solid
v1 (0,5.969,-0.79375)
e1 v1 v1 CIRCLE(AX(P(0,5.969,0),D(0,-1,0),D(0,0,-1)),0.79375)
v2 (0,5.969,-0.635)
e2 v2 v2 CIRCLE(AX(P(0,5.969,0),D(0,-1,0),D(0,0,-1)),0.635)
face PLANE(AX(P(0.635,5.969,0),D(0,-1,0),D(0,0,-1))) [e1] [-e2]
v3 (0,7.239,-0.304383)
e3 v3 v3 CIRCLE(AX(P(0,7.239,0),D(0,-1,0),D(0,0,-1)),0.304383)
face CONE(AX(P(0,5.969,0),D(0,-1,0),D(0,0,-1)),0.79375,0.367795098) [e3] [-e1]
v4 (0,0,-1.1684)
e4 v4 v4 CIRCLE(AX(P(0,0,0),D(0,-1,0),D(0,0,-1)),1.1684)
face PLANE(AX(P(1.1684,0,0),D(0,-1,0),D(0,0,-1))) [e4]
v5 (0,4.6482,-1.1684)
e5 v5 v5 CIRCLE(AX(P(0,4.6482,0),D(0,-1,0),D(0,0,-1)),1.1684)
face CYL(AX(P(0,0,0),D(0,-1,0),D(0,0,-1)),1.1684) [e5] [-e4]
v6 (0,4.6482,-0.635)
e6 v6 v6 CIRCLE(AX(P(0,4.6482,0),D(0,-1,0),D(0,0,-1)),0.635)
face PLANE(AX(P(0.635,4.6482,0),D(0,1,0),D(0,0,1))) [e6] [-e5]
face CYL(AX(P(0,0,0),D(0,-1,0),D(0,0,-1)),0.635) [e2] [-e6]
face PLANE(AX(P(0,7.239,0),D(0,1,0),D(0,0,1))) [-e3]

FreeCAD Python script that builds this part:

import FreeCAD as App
import Part
import Sketcher
from FreeCAD import Vector
Q = App.Units.Quantity

doc = App.newDocument("Part")
params = doc.addObject("Spreadsheet::Sheet", "Params")
for row, (alias, value) in enumerate([
    ("sketch1_width", "0.046 in"),
    ("sketch1_width2", "0.021 in"),
    ("sketch1_height", "0.285 in"),
    ("sketch1_height2", "0.183 in"),
    ("sketch1_height3", "0.052 in"),
    ("revolution_angle", "360 deg"),
], start=1):
    params.set(f"A{row}", alias)
    params.set(f"B{row}", "=" + value)
    params.setAlias(f"B{row}", alias)

body = doc.addObject("PartDesign::Body", "Body")

# Sketch on XY plane
sketch1 = body.newObject("Sketcher::SketchObject", "Sketch")
sketch1.AttachmentSupport = (doc.getObject("XY_Plane"), [""])
sketch1.MapMode = "FlatFace"
sketch1.addGeometry(Part.LineSegment(Vector(0, 7.24, 0), Vector(0, 0, 0)), False)
sketch1.addGeometry(Part.LineSegment(Vector(0, 0, 0), Vector(1.17, 0, 0)), False)
sketch1.addGeometry(Part.LineSegment(Vector(1.17, 0, 0), Vector(1.17, 4.65, 0)), False)
sketch1.addGeometry(Part.LineSegment(Vector(1.17, 4.65, 0), Vector(0.64, 4.65, 0)), False)
sketch1.addGeometry(Part.LineSegment(Vector(0.64, 4.65, 0), Vector(0.64, 5.97, 0)), False)
sketch1.addGeometry(Part.LineSegment(Vector(0.64, 5.97, 0), Vector(0.79, 5.97, 0)), False)
sketch1.addGeometry(Part.LineSegment(Vector(0.79, 5.97, 0), Vector(0.3, 7.24, 0)), False)
sketch1.addGeometry(Part.LineSegment(Vector(0.3, 7.24, 0), Vector(0, 7.24, 0)), False)
sketch1.addConstraint(Sketcher.Constraint("Coincident", 0, 2, 1, 1))
sketch1.addConstraint(Sketcher.Constraint("Coincident", 1, 2, 2, 1))
sketch1.addConstraint(Sketcher.Constraint("Coincident", 2, 2, 3, 1))
sketch1.addConstraint(Sketcher.Constraint("Coincident", 3, 2, 4, 1))
sketch1.addConstraint(Sketcher.Constraint("Coincident", 4, 2, 5, 1))
sketch1.addConstraint(Sketcher.Constraint("Coincident", 5, 2, 6, 1))
sketch1.addConstraint(Sketcher.Constraint("Coincident", 6, 2, 7, 1))
sketch1.addConstraint(Sketcher.Constraint("Coincident", 7, 2, 0, 1))
sketch1.addConstraint(Sketcher.Constraint("Vertical", 0))
sketch1.addConstraint(Sketcher.Constraint("Horizontal", 1))
sketch1.addConstraint(Sketcher.Constraint("Vertical", 2))
sketch1.addConstraint(Sketcher.Constraint("Horizontal", 3))
sketch1.addConstraint(Sketcher.Constraint("Vertical", 4))
sketch1.addConstraint(Sketcher.Constraint("Horizontal", 5))
sketch1.addConstraint(Sketcher.Constraint("Horizontal", 7))
sketch1.addConstraint(Sketcher.Constraint("Coincident", 0, 2, -1, 1))
sketch1.addConstraint(Sketcher.Constraint("DistanceX", 1, 1, 1, 2, Q("0.046 in")))
sketch1.addConstraint(Sketcher.Constraint("DistanceX", 3, 2, 3, 1, Q("0.021 in")))
sketch1.addConstraint(Sketcher.Constraint("DistanceY", 0, 2, 0, 1, Q("0.285 in")))
sketch1.addConstraint(Sketcher.Constraint("DistanceY", 2, 1, 2, 2, Q("0.183 in")))
sketch1.addConstraint(Sketcher.Constraint("DistanceY", 4, 1, 4, 2, Q("0.052 in")))
sketch1.addConstraint(Sketcher.Constraint("DistanceX", -1, 1, 5, 2, Q("0.03125 in")))
sketch1.addConstraint(Sketcher.Constraint("Distance", 6, Q("1.361022 mm")))
sketch1.setExpression("Constraints[16]", "Params.sketch1_width")
sketch1.setExpression("Constraints[17]", "Params.sketch1_width2")
sketch1.setExpression("Constraints[18]", "Params.sketch1_height")
sketch1.setExpression("Constraints[19]", "Params.sketch1_height2")
sketch1.setExpression("Constraints[20]", "Params.sketch1_height3")
revolution = body.newObject("PartDesign::Revolution", "Revolution")
revolution.Profile = sketch1
revolution.ReferenceAxis = (sketch1, ["V_Axis"])
revolution.setExpression("Angle", "Params.revolution_angle")

doc.recompute()
